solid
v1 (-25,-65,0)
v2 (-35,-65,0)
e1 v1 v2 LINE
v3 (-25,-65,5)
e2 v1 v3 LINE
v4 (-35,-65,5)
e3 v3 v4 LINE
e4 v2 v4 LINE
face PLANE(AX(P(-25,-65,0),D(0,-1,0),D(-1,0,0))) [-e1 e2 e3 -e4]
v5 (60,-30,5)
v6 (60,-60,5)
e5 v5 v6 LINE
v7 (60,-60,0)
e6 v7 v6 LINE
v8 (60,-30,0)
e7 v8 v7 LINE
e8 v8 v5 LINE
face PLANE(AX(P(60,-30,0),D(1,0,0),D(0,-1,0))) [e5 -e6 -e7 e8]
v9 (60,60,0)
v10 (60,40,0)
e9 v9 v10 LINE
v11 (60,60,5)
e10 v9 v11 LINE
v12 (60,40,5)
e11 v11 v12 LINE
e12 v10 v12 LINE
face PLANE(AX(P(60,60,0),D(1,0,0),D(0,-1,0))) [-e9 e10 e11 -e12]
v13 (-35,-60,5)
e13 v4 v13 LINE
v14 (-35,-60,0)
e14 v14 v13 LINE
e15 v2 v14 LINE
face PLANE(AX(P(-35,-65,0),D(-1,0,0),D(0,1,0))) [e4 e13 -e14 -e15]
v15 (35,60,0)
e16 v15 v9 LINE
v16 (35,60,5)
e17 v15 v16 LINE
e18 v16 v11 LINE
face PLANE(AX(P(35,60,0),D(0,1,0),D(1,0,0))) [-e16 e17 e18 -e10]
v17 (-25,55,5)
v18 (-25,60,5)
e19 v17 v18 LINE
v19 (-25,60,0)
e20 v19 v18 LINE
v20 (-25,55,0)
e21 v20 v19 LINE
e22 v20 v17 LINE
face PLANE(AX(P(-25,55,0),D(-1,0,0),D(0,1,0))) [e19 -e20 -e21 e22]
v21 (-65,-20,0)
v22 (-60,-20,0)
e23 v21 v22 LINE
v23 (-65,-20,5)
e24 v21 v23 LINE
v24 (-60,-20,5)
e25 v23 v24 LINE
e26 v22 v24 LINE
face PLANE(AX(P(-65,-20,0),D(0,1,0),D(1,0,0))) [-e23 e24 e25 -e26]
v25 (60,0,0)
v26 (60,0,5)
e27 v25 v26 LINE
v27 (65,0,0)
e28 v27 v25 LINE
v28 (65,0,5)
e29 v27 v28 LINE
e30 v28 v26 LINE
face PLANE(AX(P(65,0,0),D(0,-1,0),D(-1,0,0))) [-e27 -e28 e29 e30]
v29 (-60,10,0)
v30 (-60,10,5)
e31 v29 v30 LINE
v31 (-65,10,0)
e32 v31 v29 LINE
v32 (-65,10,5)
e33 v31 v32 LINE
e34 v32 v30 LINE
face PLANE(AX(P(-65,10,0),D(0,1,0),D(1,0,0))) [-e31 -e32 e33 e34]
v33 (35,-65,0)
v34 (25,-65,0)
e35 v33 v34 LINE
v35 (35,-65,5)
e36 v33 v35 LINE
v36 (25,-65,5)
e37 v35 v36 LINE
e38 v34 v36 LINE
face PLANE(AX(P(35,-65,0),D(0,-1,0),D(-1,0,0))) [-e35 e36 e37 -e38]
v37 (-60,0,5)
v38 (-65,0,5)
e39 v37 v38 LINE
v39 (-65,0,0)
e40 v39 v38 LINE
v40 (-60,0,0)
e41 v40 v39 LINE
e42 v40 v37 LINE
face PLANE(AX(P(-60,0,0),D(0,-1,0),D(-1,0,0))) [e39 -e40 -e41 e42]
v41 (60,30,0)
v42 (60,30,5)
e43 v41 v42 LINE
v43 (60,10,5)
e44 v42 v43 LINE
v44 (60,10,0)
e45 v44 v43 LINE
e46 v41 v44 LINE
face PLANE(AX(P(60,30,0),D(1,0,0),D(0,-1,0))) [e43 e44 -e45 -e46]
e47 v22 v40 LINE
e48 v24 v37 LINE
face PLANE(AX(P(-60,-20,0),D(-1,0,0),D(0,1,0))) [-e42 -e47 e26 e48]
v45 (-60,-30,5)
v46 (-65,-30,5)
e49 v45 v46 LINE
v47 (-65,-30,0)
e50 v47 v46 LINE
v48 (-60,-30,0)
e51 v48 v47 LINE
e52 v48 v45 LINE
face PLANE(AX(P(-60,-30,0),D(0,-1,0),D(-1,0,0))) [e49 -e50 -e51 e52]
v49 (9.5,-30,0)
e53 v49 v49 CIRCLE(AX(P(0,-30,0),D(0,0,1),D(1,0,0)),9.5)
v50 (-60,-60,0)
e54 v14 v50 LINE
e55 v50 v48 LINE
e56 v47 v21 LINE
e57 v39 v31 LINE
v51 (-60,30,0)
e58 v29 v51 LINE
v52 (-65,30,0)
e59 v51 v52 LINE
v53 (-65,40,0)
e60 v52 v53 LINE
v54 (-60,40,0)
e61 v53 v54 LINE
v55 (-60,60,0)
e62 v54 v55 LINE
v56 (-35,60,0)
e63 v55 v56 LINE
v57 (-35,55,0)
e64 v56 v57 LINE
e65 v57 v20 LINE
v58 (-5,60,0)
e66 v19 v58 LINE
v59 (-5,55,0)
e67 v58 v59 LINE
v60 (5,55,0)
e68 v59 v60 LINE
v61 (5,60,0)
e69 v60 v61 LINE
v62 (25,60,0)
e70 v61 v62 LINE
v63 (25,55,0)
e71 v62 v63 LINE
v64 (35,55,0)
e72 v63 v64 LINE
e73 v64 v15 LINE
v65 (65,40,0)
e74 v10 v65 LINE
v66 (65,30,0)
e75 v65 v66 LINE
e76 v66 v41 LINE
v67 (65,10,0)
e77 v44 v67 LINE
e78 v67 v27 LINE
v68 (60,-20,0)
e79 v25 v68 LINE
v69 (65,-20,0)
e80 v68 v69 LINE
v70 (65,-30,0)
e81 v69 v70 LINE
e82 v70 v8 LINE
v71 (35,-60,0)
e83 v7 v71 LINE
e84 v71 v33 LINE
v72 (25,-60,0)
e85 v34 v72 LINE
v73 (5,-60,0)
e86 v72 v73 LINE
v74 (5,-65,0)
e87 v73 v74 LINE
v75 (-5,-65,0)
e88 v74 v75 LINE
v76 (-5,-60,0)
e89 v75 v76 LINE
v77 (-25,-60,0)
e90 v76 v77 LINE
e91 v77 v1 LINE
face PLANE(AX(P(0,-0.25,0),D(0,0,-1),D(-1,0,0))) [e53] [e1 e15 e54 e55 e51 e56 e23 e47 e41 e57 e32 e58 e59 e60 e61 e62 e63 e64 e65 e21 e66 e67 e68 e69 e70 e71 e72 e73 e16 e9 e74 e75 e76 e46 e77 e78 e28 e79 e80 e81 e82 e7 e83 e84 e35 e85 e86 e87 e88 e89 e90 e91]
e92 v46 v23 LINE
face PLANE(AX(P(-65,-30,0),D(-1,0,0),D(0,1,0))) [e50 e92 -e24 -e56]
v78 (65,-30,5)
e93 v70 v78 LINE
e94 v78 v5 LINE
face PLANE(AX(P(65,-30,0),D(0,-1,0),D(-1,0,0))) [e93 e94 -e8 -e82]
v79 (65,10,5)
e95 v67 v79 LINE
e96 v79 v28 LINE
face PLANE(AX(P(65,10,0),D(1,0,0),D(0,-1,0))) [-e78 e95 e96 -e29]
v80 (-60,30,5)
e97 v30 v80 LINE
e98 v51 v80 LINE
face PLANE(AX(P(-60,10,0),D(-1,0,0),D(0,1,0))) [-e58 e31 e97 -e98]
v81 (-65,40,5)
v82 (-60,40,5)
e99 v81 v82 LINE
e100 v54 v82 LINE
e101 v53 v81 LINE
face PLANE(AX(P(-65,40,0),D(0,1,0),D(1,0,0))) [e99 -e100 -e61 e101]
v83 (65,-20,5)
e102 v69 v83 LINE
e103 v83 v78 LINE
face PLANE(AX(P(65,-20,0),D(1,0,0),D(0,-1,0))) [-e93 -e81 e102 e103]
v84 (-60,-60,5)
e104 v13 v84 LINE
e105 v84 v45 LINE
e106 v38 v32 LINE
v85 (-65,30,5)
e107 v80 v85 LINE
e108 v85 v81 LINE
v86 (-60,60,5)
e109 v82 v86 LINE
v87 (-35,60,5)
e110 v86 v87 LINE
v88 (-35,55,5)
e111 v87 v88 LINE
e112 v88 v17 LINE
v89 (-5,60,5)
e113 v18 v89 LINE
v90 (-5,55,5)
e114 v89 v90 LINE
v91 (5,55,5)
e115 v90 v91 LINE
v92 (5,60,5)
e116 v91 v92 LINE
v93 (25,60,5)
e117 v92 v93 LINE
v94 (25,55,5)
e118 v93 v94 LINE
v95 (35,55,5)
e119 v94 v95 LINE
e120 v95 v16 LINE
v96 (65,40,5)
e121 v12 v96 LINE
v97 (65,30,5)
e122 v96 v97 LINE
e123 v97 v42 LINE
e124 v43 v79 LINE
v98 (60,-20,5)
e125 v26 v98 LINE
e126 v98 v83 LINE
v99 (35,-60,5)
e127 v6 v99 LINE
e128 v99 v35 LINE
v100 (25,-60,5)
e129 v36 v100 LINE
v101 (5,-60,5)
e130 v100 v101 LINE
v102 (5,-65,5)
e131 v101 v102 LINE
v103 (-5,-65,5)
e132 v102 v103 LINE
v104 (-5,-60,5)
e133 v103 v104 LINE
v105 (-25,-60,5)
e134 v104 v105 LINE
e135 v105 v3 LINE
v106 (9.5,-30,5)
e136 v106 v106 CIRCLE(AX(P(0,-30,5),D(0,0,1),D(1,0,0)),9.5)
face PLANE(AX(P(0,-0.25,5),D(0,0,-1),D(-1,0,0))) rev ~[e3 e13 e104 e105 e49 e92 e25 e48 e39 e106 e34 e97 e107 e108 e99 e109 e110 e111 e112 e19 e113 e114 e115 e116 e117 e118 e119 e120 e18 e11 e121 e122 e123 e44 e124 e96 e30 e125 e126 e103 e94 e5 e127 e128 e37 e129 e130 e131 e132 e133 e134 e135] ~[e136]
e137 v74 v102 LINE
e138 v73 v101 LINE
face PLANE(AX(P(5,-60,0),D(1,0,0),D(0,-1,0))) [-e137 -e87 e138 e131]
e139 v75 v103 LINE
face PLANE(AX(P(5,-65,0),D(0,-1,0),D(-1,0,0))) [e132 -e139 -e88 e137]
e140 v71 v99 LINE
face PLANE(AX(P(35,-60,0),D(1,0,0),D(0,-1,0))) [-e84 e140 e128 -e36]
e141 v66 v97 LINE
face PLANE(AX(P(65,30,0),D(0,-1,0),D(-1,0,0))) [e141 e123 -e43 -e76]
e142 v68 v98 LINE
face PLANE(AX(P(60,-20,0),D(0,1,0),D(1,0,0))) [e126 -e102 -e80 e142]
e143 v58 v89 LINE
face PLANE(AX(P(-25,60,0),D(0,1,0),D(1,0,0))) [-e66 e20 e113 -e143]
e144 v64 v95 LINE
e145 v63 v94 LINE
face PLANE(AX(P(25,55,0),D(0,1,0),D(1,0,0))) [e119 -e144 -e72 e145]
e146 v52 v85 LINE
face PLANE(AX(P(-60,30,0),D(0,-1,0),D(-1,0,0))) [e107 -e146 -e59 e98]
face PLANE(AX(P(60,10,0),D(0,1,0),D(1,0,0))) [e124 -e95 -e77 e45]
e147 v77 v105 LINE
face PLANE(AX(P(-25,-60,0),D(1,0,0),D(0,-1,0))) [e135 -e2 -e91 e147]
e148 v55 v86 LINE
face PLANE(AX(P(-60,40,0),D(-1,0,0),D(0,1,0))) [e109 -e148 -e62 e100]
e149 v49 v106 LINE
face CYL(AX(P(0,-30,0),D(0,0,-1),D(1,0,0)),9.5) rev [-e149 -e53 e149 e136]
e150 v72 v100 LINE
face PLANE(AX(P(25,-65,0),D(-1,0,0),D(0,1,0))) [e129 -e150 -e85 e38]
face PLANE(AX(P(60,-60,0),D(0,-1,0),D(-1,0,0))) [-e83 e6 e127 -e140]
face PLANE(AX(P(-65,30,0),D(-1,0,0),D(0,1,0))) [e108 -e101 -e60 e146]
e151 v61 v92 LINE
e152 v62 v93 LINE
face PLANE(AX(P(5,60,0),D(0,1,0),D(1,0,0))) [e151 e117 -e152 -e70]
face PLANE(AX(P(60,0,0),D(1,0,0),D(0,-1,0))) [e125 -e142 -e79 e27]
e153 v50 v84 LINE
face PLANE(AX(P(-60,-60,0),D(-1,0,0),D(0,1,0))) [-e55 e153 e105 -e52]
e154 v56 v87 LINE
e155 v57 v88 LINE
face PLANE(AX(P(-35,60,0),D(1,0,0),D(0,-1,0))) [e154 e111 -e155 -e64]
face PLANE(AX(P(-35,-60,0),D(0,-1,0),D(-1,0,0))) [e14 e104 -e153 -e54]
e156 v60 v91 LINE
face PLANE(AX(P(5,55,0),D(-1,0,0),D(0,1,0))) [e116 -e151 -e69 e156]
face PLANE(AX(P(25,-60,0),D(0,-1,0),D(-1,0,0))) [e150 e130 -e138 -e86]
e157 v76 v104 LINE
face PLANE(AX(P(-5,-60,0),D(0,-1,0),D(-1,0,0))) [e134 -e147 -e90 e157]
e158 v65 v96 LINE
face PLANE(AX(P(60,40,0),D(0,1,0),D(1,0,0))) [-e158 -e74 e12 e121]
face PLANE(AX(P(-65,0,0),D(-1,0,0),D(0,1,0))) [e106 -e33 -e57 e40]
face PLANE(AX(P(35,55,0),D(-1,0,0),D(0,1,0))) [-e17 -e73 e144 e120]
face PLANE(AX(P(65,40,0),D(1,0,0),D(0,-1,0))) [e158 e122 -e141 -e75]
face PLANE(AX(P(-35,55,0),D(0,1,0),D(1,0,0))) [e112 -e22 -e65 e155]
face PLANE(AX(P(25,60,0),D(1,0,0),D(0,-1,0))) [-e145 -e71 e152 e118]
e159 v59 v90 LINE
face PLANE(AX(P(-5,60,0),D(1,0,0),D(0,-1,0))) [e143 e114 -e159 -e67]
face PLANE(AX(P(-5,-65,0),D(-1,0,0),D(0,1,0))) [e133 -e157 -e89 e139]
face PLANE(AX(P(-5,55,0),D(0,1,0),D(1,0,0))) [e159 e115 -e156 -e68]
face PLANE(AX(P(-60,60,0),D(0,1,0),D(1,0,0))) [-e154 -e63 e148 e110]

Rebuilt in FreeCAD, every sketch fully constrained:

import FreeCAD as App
import Part
import Sketcher

V = App.Vector
Q = App.Units.Quantity


def add_polygon(sketch, points):
    """Adds a closed chain of lines whose ends are joined by coincident constraints."""
    first, n = sketch.GeometryCount, len(points)
    for a, b in zip(points, points[1:] + points[:1]):
        sketch.addGeometry(Part.LineSegment(App.Vector(*a, 0), App.Vector(*b, 0)), False)
    for i in range(n):
        sketch.addConstraint(Sketcher.Constraint("Coincident", first + i, 2, first + (i + 1) % n, 1))

doc = App.newDocument("Part")
body = doc.addObject("PartDesign::Body", "Body")

# Sketch on XY plane
sketch1 = body.newObject("Sketcher::SketchObject", "Sketch")
sketch1.AttachmentSupport = (doc.getObject("XY_Plane"), [""])
sketch1.MapMode = "FlatFace"
add_polygon(sketch1, [(-35, 55), (-35, 60), (-60, 60), (-60, 40), (-65, 40), (-65, 30), (-60, 30), (-60, 10), (-65, 10), (-65, 0), (-60, 0), (-60, -20), (-65, -20), (-65, -30), (-60, -30), (-60, -60), (-35, -60), (-35, -65), (-25, -65), (-25, -60), (-5, -60), (-5, -65), (5, -65), (5, -60), (25, -60), (25, -65), (35, -65), (35, -60), (60, -60), (60, -30), (65, -30), (65, -20), (60, -20), (60, 0), (65, 0), (65, 10), (60, 10), (60, 30), (65, 30), (65, 40), (60, 40), (60, 60), (35, 60), (35, 55), (25, 55), (25, 60), (5, 60), (5, 55), (-5, 55), (-5, 60), (-25, 60), (-25, 55)])  # lines 0-51
sketch1.addGeometry(Part.Circle(V(0, -30, 0), V(0, 0, 1), 10), False)  # 52
sketch1.addConstraint([
    Sketcher.Constraint("Vertical", 0),
    Sketcher.Constraint("Horizontal", 1),
    Sketcher.Constraint("Vertical", 2),
    Sketcher.Constraint("Horizontal", 3),
    Sketcher.Constraint("Vertical", 4),
    Sketcher.Constraint("Horizontal", 5),
    Sketcher.Constraint("Vertical", 6),
    Sketcher.Constraint("Horizontal", 7),
    Sketcher.Constraint("Vertical", 8),
    Sketcher.Constraint("Horizontal", 9),
    Sketcher.Constraint("Vertical", 10),
    Sketcher.Constraint("Horizontal", 11),
    Sketcher.Constraint("Vertical", 12),
    Sketcher.Constraint("Horizontal", 13),
    Sketcher.Constraint("Vertical", 14),
    Sketcher.Constraint("Horizontal", 15),
    Sketcher.Constraint("Vertical", 16),
    Sketcher.Constraint("Horizontal", 17),
    Sketcher.Constraint("Vertical", 18),
    Sketcher.Constraint("Horizontal", 19),
    Sketcher.Constraint("Vertical", 20),
    Sketcher.Constraint("Horizontal", 21),
    Sketcher.Constraint("Vertical", 22),
    Sketcher.Constraint("Horizontal", 23),
    Sketcher.Constraint("Vertical", 24),
    Sketcher.Constraint("Horizontal", 25),
    Sketcher.Constraint("Vertical", 26),
    Sketcher.Constraint("Horizontal", 27),
    Sketcher.Constraint("Vertical", 28),
    Sketcher.Constraint("Horizontal", 29),
    Sketcher.Constraint("Vertical", 30),
    Sketcher.Constraint("Horizontal", 31),
    Sketcher.Constraint("Vertical", 32),
    Sketcher.Constraint("Horizontal", 33),
    Sketcher.Constraint("Vertical", 34),
    Sketcher.Constraint("Horizontal", 35),
    Sketcher.Constraint("Vertical", 36),
    Sketcher.Constraint("Horizontal", 37),
    Sketcher.Constraint("Vertical", 38),
    Sketcher.Constraint("Horizontal", 39),
    Sketcher.Constraint("Vertical", 40),
    Sketcher.Constraint("Horizontal", 41),
    Sketcher.Constraint("Vertical", 42),
    Sketcher.Constraint("Horizontal", 43),
    Sketcher.Constraint("Vertical", 44),
    Sketcher.Constraint("Horizontal", 45),
    Sketcher.Constraint("Vertical", 46),
    Sketcher.Constraint("Horizontal", 47),
    Sketcher.Constraint("Vertical", 48),
    Sketcher.Constraint("Horizontal", 49),
    Sketcher.Constraint("Vertical", 50),
    Sketcher.Constraint("Horizontal", 51),
    Sketcher.Constraint("Symmetric", 0, 2, 26, 2, -1, 1),
    Sketcher.Constraint("Symmetric", 5, 2, 28, 2, -1, 1),
    Sketcher.Constraint("Symmetric", 9, 2, 32, 2, -1, 1),
    Sketcher.Constraint("Symmetric", 13, 2, 36, 2, -1, 1),
    Sketcher.Constraint("Symmetric", 14, 2, 40, 2, -1, 1),
    Sketcher.Constraint("Symmetric", 18, 2, 44, 2, -1, 1),
    Sketcher.Constraint("Symmetric", 22, 2, 48, 2, -1, 1),
    Sketcher.Constraint("Symmetric", 19, 2, 22, 2, -2),
    Sketcher.Constraint("Symmetric", 17, 2, 24, 2, -2),
    Sketcher.Constraint("Symmetric", 15, 2, 26, 2, -2),
    Sketcher.Constraint("Symmetric", 13, 2, 28, 2, -2),
    Sketcher.Constraint("Symmetric", 11, 2, 30, 2, -2),
    Sketcher.Constraint("Symmetric", 8, 2, 33, 2, -2),
    Sketcher.Constraint("Symmetric", 3, 2, 38, 2, -2),
    Sketcher.Constraint("Symmetric", 43, 2, 50, 2, -2),
    Sketcher.Constraint("PointOnObject", 52, 3, -2),
    Sketcher.Constraint("Horizontal", 52, 3, 12, 2),
    Sketcher.Constraint("Horizontal", 15, 2, 18, 2),
    Sketcher.Constraint("Horizontal", 17, 2, 20, 2),
    Sketcher.Constraint("Horizontal", 7, 2, 34, 2),
    Sketcher.Constraint("Horizontal", 43, 2, 46, 2),
    Sketcher.Constraint("Vertical", 2, 2, 5, 2),
    Sketcher.Constraint("Vertical", 4, 2, 7, 2),
    Sketcher.Constraint("Vertical", 6, 2, 9, 2),
    Sketcher.Constraint("Vertical", 8, 2, 11, 2),
    Sketcher.Constraint("Vertical", 26, 2, 41, 2),
    Sketcher.Constraint("Vertical", 22, 2, 45, 2),
    Sketcher.Constraint("Equal", 17, 21),
    Sketcher.Constraint("Equal", 39, 0),
    Sketcher.Constraint("Equal", 49, 2),
    Sketcher.Constraint("Equal", 51, 4),
    Sketcher.Constraint("Equal", 2, 6),
    Sketcher.Constraint("Equal", 4, 8),
    Sketcher.Constraint("Equal", 6, 10),
    Sketcher.Constraint("Equal", 0, 16),
    Sketcher.Constraint("Diameter", 52, Q("19 mm")),
    Sketcher.Constraint("DistanceX", 1, 2, 1, 1, Q("25 mm")),
    Sketcher.Constraint("DistanceX", 3, 2, 3, 1, Q("5 mm")),
    Sketcher.Constraint("DistanceX", 17, 1, 17, 2, Q("10 mm")),
    Sketcher.Constraint("DistanceX", 19, 1, 19, 2, Q("20 mm")),
])
pad1 = body.newObject("PartDesign::Pad", "Pad")
pad1.Profile = sketch1
pad1.Length = 5

doc.recompute()
